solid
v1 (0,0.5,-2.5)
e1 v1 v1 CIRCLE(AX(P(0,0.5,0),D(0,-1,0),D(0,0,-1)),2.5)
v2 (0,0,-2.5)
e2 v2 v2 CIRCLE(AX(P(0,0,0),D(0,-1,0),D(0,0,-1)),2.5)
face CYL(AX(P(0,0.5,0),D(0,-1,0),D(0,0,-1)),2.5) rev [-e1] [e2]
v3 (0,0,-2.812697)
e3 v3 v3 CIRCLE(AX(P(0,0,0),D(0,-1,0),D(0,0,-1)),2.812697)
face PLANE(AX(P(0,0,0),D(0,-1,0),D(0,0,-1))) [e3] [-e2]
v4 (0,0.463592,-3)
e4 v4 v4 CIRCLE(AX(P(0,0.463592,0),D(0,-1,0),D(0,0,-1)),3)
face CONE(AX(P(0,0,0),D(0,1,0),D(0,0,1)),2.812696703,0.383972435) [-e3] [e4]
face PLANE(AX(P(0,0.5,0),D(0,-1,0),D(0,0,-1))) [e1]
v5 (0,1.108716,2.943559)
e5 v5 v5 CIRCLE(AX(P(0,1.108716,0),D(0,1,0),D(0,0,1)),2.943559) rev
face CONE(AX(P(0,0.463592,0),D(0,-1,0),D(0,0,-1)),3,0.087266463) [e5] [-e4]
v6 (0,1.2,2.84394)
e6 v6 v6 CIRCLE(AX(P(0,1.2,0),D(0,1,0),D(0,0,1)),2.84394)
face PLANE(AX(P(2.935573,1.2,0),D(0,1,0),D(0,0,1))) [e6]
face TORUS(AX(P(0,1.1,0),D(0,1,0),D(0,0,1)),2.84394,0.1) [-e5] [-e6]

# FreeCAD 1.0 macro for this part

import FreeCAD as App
import Part
import Sketcher

V = App.Vector
Q = App.Units.Quantity


def edges_at(feature, points):
    """Names of the edges that pass closest to the given points."""
    edges = feature.Shape.Edges
    near = lambda p: min(range(len(edges)), key=lambda i: edges[i].distToShape(Part.Vertex(*p))[0])
    return sorted({f"Edge{near(p) + 1}" for p in points})

doc = App.newDocument("Part")
body = doc.addObject("PartDesign::Body", "Body")

# Sketch on XY plane
sketch1 = body.newObject("Sketcher::SketchObject", "Sketch")
sketch1.AttachmentSupport = (doc.getObject("XY_Plane"), [""])
sketch1.MapMode = "FlatFace"
sketch1.addGeometry(Part.LineSegment(V(0, 1.2, 0), V(0, 0, 0)), False)
sketch1.addGeometry(Part.LineSegment(V(0, 0, 0), V(2.81, 0, 0)), False)
sketch1.addGeometry(Part.LineSegment(V(2.81, 0, 0), V(3, 0.46, 0)), False)
sketch1.addGeometry(Part.LineSegment(V(3, 0.46, 0), V(2.94, 1.2, 0)), False)
sketch1.addGeometry(Part.LineSegment(V(2.94, 1.2, 0), V(0, 1.2, 0)), False)
sketch1.addConstraint(Sketcher.Constraint("Coincident", 0, 2, 1, 1))
sketch1.addConstraint(Sketcher.Constraint("Coincident", 1, 2, 2, 1))
sketch1.addConstraint(Sketcher.Constraint("Coincident", 2, 2, 3, 1))
sketch1.addConstraint(Sketcher.Constraint("Coincident", 3, 2, 4, 1))
sketch1.addConstraint(Sketcher.Constraint("Coincident", 4, 2, 0, 1))
sketch1.addConstraint(Sketcher.Constraint("Vertical", 0))
sketch1.addConstraint(Sketcher.Constraint("Horizontal", 1))
sketch1.addConstraint(Sketcher.Constraint("Horizontal", 4))
sketch1.addConstraint(Sketcher.Constraint("Coincident", 0, 2, -1, 1))
sketch1.addConstraint(Sketcher.Constraint("Angle", 2, Q("68 deg")))
sketch1.addConstraint(Sketcher.Constraint("Angle", 3, Q("95 deg")))
sketch1.addConstraint(Sketcher.Constraint("DistanceY", 0, 2, 0, 1, Q("1.2 mm")))
sketch1.addConstraint(Sketcher.Constraint("DistanceX", -1, 1, 2, 2, Q("3 mm")))
sketch1.addConstraint(Sketcher.Constraint("Distance", 2, Q("0.5 mm")))
revolution = body.newObject("PartDesign::Revolution", "Revolution")
revolution.Profile = sketch1
revolution.ReferenceAxis = (sketch1, ["V_Axis"])
revolution.Angle = 360
doc.recompute()

fillet = body.newObject("PartDesign::Fillet", "Fillet")
fillet.Base = (revolution, edges_at(revolution, [(0, 1.2, 2.936)]))
fillet.Radius = 0.1

# Sketch on XZ plane
sketch2 = body.newObject("Sketcher::SketchObject", "Sketch001")
sketch2.AttachmentSupport = (doc.getObject("XZ_Plane"), [""])
sketch2.MapMode = "FlatFace"
sketch2.addGeometry(Part.Circle(V(0, 0, 0), V(0, 0, 1), 2.5), False)
sketch2.addConstraint(Sketcher.Constraint("Coincident", 0, 3, -1, 1))
sketch2.addConstraint(Sketcher.Constraint("Diameter", 0, Q("5 mm")))
pocket1 = body.newObject("PartDesign::Pocket", "Pocket")
pocket1.Profile = sketch2
pocket1.Length = 0.5

doc.recompute()
